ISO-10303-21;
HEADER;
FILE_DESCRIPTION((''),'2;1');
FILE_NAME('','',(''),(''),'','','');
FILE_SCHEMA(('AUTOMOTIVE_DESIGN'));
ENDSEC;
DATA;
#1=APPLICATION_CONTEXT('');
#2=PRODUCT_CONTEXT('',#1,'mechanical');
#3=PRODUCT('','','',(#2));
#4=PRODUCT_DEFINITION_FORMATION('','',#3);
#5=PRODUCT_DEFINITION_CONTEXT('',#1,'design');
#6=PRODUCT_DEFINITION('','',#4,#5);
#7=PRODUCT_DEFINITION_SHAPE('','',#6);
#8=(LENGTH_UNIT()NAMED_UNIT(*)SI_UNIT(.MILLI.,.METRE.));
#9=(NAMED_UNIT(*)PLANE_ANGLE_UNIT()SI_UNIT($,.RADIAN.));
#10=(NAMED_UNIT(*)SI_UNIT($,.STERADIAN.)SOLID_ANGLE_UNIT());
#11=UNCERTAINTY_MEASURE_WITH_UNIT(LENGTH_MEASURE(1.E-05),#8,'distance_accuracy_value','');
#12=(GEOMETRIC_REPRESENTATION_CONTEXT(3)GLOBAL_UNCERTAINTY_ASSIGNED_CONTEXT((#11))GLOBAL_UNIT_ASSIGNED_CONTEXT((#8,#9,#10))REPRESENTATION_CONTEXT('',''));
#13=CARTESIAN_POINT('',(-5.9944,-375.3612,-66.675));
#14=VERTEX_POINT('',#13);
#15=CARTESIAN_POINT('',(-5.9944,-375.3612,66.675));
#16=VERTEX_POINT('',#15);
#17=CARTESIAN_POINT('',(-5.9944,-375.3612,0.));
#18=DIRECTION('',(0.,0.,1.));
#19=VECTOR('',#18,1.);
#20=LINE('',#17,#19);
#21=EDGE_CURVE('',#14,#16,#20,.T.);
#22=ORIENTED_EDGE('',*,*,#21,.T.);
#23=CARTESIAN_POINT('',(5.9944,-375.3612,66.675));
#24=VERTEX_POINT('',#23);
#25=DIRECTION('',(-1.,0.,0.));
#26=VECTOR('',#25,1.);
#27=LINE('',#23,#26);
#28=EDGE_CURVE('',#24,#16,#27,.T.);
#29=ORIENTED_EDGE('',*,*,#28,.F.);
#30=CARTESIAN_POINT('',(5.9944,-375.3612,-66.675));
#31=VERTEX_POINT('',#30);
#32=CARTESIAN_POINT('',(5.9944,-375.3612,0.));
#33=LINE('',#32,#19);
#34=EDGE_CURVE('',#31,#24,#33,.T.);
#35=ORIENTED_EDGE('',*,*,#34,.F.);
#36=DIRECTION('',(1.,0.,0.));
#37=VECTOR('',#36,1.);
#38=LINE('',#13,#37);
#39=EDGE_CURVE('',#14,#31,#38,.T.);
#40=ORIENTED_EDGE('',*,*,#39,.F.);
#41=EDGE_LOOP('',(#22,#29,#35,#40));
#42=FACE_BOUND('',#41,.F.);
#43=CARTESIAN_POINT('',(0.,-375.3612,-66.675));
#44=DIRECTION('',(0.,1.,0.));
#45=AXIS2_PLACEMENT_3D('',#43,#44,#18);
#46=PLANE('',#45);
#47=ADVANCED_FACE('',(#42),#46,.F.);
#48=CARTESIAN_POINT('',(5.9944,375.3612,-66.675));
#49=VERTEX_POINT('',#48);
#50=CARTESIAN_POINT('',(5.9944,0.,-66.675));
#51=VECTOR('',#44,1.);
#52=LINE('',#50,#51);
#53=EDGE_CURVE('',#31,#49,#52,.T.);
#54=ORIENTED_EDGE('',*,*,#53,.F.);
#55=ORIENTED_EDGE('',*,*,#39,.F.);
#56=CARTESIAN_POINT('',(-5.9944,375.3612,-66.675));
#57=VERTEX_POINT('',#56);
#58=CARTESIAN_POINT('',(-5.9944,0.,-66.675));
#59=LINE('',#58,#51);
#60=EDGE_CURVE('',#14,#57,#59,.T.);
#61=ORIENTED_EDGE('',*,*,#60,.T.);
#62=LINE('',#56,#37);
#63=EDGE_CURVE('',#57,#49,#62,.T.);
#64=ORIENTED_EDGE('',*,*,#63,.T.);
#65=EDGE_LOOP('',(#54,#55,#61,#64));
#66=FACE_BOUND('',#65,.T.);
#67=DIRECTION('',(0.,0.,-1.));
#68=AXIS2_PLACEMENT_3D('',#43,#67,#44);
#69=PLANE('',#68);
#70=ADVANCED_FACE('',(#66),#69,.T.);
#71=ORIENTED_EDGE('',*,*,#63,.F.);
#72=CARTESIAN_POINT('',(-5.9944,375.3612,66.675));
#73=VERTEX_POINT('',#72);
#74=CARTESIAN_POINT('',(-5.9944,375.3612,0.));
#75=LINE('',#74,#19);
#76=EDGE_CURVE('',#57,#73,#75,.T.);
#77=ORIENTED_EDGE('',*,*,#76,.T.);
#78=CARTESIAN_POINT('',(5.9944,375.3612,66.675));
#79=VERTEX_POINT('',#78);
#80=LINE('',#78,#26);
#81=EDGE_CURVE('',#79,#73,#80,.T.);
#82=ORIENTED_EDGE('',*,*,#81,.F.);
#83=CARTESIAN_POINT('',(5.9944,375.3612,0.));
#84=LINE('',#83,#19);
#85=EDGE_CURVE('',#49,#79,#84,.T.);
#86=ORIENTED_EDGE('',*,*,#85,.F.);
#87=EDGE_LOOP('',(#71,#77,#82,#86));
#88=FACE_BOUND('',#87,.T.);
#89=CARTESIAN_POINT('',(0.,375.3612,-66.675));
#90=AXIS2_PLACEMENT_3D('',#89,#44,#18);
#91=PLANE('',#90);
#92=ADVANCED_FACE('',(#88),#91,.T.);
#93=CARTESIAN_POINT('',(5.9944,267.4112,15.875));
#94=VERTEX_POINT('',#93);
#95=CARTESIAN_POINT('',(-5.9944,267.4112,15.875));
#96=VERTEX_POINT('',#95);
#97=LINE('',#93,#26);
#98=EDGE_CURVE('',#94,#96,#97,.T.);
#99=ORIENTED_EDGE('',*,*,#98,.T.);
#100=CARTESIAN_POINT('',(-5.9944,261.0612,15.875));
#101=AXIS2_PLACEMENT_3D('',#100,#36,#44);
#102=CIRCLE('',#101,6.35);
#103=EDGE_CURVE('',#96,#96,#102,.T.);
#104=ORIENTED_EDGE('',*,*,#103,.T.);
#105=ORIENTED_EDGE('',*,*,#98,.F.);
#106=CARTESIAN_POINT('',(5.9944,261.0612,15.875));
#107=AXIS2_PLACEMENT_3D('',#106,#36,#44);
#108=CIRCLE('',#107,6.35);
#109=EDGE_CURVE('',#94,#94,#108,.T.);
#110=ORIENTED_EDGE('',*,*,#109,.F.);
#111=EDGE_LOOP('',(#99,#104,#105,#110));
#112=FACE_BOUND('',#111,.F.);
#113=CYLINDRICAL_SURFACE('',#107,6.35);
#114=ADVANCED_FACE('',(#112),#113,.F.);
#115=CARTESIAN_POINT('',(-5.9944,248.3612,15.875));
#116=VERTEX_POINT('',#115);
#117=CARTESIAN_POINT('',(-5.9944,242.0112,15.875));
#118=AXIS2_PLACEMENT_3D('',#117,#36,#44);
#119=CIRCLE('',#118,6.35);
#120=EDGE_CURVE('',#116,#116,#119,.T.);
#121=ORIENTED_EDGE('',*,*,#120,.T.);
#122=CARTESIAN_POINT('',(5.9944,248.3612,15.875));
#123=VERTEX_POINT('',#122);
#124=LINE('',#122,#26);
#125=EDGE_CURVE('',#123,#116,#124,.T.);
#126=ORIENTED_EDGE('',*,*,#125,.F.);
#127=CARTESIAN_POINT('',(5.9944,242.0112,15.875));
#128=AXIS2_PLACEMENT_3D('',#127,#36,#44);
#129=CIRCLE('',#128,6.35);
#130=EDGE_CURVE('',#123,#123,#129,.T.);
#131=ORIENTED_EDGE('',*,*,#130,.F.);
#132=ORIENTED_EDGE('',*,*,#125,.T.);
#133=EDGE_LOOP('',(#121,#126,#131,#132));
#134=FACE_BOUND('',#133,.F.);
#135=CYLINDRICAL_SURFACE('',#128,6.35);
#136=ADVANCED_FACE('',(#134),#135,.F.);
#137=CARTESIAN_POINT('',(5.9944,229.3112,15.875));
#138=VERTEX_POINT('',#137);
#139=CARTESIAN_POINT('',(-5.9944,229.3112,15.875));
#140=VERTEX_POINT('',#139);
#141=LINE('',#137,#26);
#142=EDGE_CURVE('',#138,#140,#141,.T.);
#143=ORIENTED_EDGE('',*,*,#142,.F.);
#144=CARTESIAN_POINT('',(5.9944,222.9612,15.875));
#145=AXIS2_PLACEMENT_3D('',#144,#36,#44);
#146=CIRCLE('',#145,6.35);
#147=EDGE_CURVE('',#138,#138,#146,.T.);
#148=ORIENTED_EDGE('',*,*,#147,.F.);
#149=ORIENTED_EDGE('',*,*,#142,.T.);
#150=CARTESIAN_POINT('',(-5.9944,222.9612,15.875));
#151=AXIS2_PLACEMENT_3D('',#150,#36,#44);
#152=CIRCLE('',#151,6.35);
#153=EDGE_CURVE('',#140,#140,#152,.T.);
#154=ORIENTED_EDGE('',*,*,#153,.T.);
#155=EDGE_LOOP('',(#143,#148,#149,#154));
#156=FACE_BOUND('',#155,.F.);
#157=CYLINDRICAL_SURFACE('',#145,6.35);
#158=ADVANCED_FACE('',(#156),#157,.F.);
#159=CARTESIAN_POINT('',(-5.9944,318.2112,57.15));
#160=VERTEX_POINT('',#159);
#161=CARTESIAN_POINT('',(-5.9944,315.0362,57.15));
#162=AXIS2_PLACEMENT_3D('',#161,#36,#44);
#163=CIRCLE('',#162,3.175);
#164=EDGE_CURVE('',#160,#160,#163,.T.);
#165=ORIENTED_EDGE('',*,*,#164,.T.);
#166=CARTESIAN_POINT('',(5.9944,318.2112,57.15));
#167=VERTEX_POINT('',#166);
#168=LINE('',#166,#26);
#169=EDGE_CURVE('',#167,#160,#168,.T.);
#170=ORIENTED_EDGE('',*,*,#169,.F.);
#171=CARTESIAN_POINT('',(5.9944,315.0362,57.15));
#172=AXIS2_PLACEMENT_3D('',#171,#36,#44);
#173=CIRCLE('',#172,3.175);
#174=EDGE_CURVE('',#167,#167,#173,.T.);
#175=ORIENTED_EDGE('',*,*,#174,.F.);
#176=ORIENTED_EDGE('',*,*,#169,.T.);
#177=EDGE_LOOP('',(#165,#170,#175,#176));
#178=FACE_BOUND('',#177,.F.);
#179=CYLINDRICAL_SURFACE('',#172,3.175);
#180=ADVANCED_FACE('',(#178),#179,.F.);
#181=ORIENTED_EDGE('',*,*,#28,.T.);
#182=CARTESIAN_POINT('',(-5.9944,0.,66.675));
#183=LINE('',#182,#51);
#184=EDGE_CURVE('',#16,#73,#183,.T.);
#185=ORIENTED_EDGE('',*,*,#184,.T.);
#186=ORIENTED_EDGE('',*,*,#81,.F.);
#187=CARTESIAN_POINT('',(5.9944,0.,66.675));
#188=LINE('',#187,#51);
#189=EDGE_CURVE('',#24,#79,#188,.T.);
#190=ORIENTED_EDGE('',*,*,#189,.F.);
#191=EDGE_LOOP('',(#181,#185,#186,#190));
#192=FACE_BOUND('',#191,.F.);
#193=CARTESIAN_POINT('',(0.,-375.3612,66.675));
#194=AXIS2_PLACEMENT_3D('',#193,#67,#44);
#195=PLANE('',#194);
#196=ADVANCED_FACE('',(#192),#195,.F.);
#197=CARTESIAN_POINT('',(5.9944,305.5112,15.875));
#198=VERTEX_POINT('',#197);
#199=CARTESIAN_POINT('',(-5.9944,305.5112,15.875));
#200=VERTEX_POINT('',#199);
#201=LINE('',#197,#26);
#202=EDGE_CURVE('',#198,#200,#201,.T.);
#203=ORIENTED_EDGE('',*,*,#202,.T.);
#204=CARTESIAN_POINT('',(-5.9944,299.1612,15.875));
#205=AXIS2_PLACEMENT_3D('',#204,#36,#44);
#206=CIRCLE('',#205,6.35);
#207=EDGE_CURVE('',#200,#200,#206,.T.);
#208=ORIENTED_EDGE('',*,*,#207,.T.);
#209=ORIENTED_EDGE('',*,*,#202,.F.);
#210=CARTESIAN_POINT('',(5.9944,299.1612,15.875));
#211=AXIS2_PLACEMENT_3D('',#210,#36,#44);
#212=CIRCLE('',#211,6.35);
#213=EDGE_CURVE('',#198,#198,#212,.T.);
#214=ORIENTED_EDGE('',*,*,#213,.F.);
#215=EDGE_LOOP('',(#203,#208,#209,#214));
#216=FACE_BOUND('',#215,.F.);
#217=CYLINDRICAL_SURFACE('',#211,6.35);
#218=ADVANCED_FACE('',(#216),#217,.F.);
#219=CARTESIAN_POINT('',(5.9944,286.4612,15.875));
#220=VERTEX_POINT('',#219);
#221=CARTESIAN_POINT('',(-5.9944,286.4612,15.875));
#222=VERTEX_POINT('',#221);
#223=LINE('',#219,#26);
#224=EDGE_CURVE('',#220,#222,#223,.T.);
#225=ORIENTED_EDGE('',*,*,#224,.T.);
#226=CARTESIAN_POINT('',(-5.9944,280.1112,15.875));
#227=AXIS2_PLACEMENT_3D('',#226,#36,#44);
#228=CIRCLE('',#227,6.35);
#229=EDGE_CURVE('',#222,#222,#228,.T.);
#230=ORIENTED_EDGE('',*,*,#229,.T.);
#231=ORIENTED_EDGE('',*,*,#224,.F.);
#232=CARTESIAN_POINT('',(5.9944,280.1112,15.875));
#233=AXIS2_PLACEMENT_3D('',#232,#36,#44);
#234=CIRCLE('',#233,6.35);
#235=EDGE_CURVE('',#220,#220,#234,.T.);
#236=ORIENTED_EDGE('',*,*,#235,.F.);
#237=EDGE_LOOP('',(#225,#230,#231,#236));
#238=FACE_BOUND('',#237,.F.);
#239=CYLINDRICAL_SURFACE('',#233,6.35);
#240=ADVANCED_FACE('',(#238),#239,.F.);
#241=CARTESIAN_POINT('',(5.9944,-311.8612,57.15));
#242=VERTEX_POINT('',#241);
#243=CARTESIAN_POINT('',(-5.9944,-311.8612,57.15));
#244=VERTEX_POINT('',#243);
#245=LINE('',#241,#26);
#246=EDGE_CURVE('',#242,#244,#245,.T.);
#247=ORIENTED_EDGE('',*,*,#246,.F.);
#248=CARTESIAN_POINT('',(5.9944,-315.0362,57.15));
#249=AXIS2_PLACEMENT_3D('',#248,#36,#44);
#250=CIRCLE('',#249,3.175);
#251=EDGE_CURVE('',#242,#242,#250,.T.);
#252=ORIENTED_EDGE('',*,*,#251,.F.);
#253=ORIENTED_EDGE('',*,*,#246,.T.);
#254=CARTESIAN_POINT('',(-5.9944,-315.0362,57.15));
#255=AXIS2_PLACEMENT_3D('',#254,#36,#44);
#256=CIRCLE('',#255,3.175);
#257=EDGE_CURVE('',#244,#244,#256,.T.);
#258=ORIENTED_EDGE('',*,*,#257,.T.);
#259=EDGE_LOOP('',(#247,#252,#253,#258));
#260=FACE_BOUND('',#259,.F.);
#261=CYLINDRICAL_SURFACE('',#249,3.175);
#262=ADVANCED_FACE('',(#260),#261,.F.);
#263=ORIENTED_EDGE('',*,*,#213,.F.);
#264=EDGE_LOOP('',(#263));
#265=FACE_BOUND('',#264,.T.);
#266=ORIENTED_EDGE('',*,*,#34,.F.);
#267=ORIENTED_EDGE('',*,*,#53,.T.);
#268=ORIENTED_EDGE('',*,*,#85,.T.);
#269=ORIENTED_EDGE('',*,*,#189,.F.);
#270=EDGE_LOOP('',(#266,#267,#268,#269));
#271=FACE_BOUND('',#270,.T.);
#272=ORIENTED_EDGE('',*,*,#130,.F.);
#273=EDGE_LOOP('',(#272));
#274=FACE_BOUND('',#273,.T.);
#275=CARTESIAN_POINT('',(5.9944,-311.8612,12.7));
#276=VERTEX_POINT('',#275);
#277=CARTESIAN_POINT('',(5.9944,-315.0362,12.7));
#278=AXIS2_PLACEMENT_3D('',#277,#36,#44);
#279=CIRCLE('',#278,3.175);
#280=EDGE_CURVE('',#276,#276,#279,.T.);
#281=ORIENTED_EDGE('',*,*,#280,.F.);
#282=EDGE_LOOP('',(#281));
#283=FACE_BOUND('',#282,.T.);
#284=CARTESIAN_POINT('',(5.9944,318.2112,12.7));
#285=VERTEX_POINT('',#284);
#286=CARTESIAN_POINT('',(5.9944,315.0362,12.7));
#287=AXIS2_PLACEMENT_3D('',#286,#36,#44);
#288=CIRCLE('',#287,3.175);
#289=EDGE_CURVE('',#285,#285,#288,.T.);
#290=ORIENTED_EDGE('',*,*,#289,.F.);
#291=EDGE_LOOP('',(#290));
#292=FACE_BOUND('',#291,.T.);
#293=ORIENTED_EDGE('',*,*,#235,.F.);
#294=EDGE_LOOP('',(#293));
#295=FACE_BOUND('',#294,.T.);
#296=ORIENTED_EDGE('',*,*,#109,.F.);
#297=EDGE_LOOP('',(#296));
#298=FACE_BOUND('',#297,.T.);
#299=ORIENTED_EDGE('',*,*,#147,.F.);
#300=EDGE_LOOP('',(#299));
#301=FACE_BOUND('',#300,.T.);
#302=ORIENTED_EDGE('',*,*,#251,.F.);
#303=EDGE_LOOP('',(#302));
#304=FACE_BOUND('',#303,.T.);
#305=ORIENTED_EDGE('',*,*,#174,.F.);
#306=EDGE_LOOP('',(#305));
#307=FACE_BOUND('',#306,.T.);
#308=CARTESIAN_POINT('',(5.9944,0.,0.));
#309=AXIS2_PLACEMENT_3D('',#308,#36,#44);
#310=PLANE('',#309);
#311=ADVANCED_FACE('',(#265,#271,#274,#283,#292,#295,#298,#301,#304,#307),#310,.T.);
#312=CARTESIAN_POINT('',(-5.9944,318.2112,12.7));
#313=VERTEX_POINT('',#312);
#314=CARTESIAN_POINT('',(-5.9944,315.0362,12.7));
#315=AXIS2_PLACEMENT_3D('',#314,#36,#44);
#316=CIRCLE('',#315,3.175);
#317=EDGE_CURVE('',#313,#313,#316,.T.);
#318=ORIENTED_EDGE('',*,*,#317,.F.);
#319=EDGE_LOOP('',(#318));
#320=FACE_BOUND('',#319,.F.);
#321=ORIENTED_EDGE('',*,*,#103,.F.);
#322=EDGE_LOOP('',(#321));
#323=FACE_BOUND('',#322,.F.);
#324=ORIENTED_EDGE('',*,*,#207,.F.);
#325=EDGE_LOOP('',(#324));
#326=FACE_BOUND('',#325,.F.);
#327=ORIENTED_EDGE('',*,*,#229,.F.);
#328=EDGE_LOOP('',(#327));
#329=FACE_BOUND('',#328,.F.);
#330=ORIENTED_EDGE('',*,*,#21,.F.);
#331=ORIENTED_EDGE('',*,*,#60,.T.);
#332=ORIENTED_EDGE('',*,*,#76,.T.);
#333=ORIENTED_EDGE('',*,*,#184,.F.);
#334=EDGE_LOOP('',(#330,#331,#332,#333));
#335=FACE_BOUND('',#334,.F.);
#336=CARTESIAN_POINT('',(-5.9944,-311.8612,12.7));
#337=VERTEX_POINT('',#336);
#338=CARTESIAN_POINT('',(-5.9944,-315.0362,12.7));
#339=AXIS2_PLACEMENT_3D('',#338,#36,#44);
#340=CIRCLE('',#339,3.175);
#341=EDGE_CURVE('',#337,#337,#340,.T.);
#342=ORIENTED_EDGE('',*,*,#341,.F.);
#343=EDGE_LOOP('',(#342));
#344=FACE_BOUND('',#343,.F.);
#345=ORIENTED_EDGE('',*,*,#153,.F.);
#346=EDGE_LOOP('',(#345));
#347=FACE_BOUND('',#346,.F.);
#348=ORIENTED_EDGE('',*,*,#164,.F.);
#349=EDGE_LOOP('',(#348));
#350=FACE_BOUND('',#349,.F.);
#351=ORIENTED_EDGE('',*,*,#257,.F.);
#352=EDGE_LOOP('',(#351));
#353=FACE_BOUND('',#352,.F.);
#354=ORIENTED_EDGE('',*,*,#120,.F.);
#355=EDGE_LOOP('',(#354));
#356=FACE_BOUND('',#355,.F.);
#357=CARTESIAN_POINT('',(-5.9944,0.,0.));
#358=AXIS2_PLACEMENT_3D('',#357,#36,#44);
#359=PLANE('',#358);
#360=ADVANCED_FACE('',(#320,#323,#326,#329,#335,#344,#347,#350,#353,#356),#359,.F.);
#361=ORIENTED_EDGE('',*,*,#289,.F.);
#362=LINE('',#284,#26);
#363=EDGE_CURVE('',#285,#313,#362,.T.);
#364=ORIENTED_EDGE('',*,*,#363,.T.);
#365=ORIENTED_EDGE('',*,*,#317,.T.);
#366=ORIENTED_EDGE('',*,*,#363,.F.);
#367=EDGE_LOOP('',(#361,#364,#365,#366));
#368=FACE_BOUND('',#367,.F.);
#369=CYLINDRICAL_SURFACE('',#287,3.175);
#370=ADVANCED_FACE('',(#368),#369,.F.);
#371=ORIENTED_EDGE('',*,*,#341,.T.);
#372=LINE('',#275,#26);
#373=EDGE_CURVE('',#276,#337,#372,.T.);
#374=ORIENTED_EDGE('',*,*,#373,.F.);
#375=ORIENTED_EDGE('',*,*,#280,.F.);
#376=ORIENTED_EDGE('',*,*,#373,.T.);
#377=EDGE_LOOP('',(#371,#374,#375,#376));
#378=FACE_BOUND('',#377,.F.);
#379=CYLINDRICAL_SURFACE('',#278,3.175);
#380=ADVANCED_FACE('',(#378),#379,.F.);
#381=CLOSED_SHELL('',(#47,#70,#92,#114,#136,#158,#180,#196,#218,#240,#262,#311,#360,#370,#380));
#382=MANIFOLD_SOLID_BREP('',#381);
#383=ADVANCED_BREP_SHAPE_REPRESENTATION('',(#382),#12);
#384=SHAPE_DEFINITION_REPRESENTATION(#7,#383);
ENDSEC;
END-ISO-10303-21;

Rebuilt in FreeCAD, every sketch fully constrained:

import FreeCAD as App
import Part
import Sketcher
Q = App.Units.Quantity


def add_polygon(sketch, points):
    """Adds a closed chain of lines whose ends are joined by coincident constraints."""
    first, n = sketch.GeometryCount, len(points)
    for a, b in zip(points, points[1:] + points[:1]):
        sketch.addGeometry(Part.LineSegment(App.Vector(*a, 0), App.Vector(*b, 0)), False)
    for i in range(n):
        sketch.addConstraint(Sketcher.Constraint("Coincident", first + i, 2, first + (i + 1) % n, 1))

doc = App.newDocument("Part")
body = doc.addObject("PartDesign::Body", "Body")

# Sketch on YZ plane
sketch1 = doc.addObject("Sketcher::SketchObject", "Sketch")
body.addObject(sketch1)
sketch1.AttachmentSupport = (doc.YZ_Plane, [""])
sketch1.MapMode = "FlatFace"
add_polygon(sketch1, [(-375, 67), (-375, -67), (375, -67), (375, 67)])  # lines 0-3
sketch1.addConstraint([
    Sketcher.Constraint("Vertical", 0),
    Sketcher.Constraint("Horizontal", 1),
    Sketcher.Constraint("Vertical", 2),
    Sketcher.Constraint("Horizontal", 3),
    Sketcher.Constraint("Symmetric", 0, 2, 2, 2, -1, 1),
    Sketcher.Constraint("DistanceY", 0, 2, 0, 1, Q("5.25 in")),
    Sketcher.Constraint("DistanceX", 1, 1, 1, 2, Q("29.556 in")),
])
pad1 = doc.addObject("PartDesign::Pad", "Pad")
body.addObject(pad1)
pad1.Profile = sketch1
pad1.Length = Q("0.472 in")
pad1.Midplane = True

# Sketch on YZ plane
sketch2 = doc.addObject("Sketcher::SketchObject", "Sketch001")
body.addObject(sketch2)
sketch2.AttachmentSupport = (doc.YZ_Plane, [""])
sketch2.MapMode = "FlatFace"
sketch2.AttachmentOffset = App.Placement(App.Vector(0, 0, 0.236 * 25.4), App.Rotation())
sketch2.addGeometry([
    Part.Circle(App.Vector(223, 16, 0), App.Vector(0, 0, 1), 6),  # 0
    Part.Circle(App.Vector(242, 16, 0), App.Vector(0, 0, 1), 6),  # 1
    Part.Circle(App.Vector(261, 16, 0), App.Vector(0, 0, 1), 6),  # 2
    Part.Circle(App.Vector(280, 16, 0), App.Vector(0, 0, 1), 6),  # 3
    Part.Circle(App.Vector(299, 16, 0), App.Vector(0, 0, 1), 6),  # 4
], False)
sketch2.addConstraint([
    Sketcher.Constraint("Equal", 0, 1),
    Sketcher.Constraint("Equal", 1, 2),
    Sketcher.Constraint("Equal", 2, 3),
    Sketcher.Constraint("Equal", 3, 4),
    Sketcher.Constraint("Horizontal", 0, 3, 1, 3),
    Sketcher.Constraint("Horizontal", 1, 3, 2, 3),
    Sketcher.Constraint("Horizontal", 2, 3, 3, 3),
    Sketcher.Constraint("Horizontal", 3, 3, 4, 3),
    Sketcher.Constraint("Diameter", 0, Q("0.5 in")),
    Sketcher.Constraint("DistanceX", 0, 3, 4, 3, Q("3 in")),
    Sketcher.Constraint("DistanceX", 0, 3, 2, 3, Q("1.5 in")),
    Sketcher.Constraint("DistanceX", 1, 3, 3, 3, Q("1.5 in")),
    Sketcher.Constraint("DistanceX", 0, 3, 1, 3, Q("0.75 in")),
    Sketcher.Constraint("DistanceX", -1, 1, 0, 3, Q("8.778 in")),
    Sketcher.Constraint("DistanceY", -1, 1, 0, 3, Q("0.625 in")),
])
pocket1 = doc.addObject("PartDesign::Pocket", "Pocket")
body.addObject(pocket1)
pocket1.Profile = sketch2
pocket1.Type = "ThroughAll"

# Sketch on YZ plane
sketch3 = doc.addObject("Sketcher::SketchObject", "Sketch002")
body.addObject(sketch3)
sketch3.AttachmentSupport = (doc.YZ_Plane, [""])
sketch3.MapMode = "FlatFace"
sketch3.AttachmentOffset = App.Placement(App.Vector(0, 0, 0.236 * 25.4), App.Rotation())
sketch3.addGeometry([
    Part.Circle(App.Vector(-315, 57.1, 0), App.Vector(0, 0, 1), 3.2),
    Part.Circle(App.Vector(-315, 12.7, 0), App.Vector(0, 0, 1), 3.2),
    Part.Circle(App.Vector(315, 12.7, 0), App.Vector(0, 0, 1), 3.2),
    Part.Circle(App.Vector(315, 57.1, 0), App.Vector(0, 0, 1), 3.2),
], False)
sketch3.addConstraint([
    Sketcher.Constraint("Equal", 0, 1),
    Sketcher.Constraint("Equal", 1, 2),
    Sketcher.Constraint("Equal", 2, 3),
    Sketcher.Constraint("Symmetric", 1, 3, 2, 3, -2),
    Sketcher.Constraint("Symmetric", 0, 3, 3, 3, -2),
    Sketcher.Constraint("Vertical", 0, 3, 1, 3),
    Sketcher.Constraint("Diameter", 0, Q("0.25 in")),
    Sketcher.Constraint("DistanceY", -1, 1, 1, 3, Q("0.5 in")),
    Sketcher.Constraint("DistanceY", -1, 1, 0, 3, Q("2.25 in")),
    Sketcher.Constraint("DistanceX", 0, 3, -1, 1, Q("12.403 in")),
])
pocket2 = doc.addObject("PartDesign::Pocket", "Pocket001")
body.addObject(pocket2)
pocket2.Profile = sketch3
pocket2.Type = "ThroughAll"

doc.recompute()
